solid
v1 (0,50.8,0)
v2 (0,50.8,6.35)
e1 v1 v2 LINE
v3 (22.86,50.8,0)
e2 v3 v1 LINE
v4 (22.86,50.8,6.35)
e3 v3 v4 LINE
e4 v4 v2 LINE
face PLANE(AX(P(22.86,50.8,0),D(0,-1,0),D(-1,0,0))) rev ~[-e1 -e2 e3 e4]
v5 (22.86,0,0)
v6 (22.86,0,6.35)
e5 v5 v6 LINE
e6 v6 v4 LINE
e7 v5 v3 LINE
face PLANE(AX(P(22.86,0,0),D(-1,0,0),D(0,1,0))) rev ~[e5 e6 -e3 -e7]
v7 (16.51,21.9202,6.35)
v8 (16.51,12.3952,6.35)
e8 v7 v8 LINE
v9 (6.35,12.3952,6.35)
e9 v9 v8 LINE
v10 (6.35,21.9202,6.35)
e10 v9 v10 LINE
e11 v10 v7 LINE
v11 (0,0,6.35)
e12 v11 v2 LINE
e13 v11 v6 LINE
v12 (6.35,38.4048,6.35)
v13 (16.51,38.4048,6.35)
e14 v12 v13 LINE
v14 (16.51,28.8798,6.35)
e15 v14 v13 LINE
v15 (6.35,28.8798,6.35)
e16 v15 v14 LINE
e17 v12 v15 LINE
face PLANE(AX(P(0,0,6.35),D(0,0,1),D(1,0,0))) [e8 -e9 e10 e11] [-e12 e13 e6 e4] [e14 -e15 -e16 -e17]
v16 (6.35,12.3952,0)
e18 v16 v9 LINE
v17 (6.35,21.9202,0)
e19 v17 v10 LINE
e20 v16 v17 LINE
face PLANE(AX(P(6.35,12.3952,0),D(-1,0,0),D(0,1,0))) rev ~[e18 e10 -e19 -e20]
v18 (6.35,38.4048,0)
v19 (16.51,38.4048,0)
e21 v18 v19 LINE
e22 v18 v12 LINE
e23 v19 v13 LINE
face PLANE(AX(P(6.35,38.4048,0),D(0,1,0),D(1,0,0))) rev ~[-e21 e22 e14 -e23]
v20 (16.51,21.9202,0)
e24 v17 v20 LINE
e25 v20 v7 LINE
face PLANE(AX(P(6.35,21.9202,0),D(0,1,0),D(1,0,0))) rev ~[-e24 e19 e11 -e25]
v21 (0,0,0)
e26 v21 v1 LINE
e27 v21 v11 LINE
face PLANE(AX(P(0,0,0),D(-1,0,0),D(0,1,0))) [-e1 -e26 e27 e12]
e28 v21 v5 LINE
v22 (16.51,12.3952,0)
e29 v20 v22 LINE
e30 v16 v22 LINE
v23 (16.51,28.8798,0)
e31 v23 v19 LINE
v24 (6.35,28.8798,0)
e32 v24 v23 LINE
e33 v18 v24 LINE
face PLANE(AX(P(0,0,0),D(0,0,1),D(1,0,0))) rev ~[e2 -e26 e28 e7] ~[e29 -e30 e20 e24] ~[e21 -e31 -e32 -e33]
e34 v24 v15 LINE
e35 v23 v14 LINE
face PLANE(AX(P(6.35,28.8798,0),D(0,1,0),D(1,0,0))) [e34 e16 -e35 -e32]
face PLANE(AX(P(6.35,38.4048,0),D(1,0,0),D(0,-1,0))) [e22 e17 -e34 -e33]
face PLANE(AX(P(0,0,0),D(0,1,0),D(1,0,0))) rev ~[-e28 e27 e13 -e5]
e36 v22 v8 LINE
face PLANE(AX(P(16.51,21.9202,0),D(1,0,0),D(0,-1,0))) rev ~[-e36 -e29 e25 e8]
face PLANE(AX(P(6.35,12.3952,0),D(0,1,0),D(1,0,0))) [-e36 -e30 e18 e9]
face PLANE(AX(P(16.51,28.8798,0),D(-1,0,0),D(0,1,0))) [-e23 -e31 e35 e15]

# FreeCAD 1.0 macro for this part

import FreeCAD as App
import Part
import Sketcher
from FreeCAD import Vector
Q = App.Units.Quantity


def add_polygon(sketch, points):
    """Adds a closed chain of lines whose ends are joined by coincident constraints."""
    first, n = sketch.GeometryCount, len(points)
    for a, b in zip(points, points[1:] + points[:1]):
        sketch.addGeometry(Part.LineSegment(App.Vector(*a, 0), App.Vector(*b, 0)), False)
    for i in range(n):
        sketch.addConstraint(Sketcher.Constraint("Coincident", first + i, 2, first + (i + 1) % n, 1))

doc = App.newDocument("Part")
body = doc.addObject("PartDesign::Body", "Body")

# Sketch on XY plane
sketch1 = doc.addObject("Sketcher::SketchObject", "Sketch")
body.addObject(sketch1)
sketch1.AttachmentSupport = (doc.XY_Plane, [""])
sketch1.MapMode = "FlatFace"
add_polygon(sketch1, [(0, 51), (0, 0), (23, 0), (23, 51)])  # lines 0-3
add_polygon(sketch1, [(17, 12), (6, 12), (6, 22), (17, 22)])  # lines 4-7
add_polygon(sketch1, [(6, 29), (6, 38), (17, 38), (17, 29)])  # lines 8-11
sketch1.addConstraint(Sketcher.Constraint("Vertical", 0))
sketch1.addConstraint(Sketcher.Constraint("Horizontal", 1))
sketch1.addConstraint(Sketcher.Constraint("Vertical", 2))
sketch1.addConstraint(Sketcher.Constraint("Horizontal", 3))
sketch1.addConstraint(Sketcher.Constraint("Horizontal", 4))
sketch1.addConstraint(Sketcher.Constraint("Vertical", 5))
sketch1.addConstraint(Sketcher.Constraint("Horizontal", 6))
sketch1.addConstraint(Sketcher.Constraint("Vertical", 7))
sketch1.addConstraint(Sketcher.Constraint("Vertical", 8))
sketch1.addConstraint(Sketcher.Constraint("Horizontal", 9))
sketch1.addConstraint(Sketcher.Constraint("Vertical", 10))
sketch1.addConstraint(Sketcher.Constraint("Horizontal", 11))
sketch1.addConstraint(Sketcher.Constraint("Coincident", 0, 2, -1, 1))
sketch1.addConstraint(Sketcher.Constraint("Vertical", 5, 2, 8, 2))
sketch1.addConstraint(Sketcher.Constraint("Vertical", 7, 2, 9, 2))
sketch1.addConstraint(Sketcher.Constraint("Equal", 7, 8))
sketch1.addConstraint(Sketcher.Constraint("DistanceY", 0, 2, 0, 1, Q("2 in")))
sketch1.addConstraint(Sketcher.Constraint("DistanceX", 1, 1, 1, 2, Q("0.9 in")))
sketch1.addConstraint(Sketcher.Constraint("DistanceX", 4, 2, 4, 1, Q("0.4 in")))
sketch1.addConstraint(Sketcher.Constraint("DistanceY", 5, 1, 5, 2, Q("0.375 in")))
sketch1.addConstraint(Sketcher.Constraint("DistanceX", -1, 1, 4, 2, Q("0.25 in")))
sketch1.addConstraint(Sketcher.Constraint("DistanceY", -1, 1, 4, 2, Q("0.488 in")))
sketch1.addConstraint(Sketcher.Constraint("DistanceY", 8, 2, 3, 2, Q("0.488 in")))
pad1 = doc.addObject("PartDesign::Pad", "Pad")
body.addObject(pad1)
pad1.Profile = sketch1
pad1.Length = Q("0.25 in")

doc.recompute()
